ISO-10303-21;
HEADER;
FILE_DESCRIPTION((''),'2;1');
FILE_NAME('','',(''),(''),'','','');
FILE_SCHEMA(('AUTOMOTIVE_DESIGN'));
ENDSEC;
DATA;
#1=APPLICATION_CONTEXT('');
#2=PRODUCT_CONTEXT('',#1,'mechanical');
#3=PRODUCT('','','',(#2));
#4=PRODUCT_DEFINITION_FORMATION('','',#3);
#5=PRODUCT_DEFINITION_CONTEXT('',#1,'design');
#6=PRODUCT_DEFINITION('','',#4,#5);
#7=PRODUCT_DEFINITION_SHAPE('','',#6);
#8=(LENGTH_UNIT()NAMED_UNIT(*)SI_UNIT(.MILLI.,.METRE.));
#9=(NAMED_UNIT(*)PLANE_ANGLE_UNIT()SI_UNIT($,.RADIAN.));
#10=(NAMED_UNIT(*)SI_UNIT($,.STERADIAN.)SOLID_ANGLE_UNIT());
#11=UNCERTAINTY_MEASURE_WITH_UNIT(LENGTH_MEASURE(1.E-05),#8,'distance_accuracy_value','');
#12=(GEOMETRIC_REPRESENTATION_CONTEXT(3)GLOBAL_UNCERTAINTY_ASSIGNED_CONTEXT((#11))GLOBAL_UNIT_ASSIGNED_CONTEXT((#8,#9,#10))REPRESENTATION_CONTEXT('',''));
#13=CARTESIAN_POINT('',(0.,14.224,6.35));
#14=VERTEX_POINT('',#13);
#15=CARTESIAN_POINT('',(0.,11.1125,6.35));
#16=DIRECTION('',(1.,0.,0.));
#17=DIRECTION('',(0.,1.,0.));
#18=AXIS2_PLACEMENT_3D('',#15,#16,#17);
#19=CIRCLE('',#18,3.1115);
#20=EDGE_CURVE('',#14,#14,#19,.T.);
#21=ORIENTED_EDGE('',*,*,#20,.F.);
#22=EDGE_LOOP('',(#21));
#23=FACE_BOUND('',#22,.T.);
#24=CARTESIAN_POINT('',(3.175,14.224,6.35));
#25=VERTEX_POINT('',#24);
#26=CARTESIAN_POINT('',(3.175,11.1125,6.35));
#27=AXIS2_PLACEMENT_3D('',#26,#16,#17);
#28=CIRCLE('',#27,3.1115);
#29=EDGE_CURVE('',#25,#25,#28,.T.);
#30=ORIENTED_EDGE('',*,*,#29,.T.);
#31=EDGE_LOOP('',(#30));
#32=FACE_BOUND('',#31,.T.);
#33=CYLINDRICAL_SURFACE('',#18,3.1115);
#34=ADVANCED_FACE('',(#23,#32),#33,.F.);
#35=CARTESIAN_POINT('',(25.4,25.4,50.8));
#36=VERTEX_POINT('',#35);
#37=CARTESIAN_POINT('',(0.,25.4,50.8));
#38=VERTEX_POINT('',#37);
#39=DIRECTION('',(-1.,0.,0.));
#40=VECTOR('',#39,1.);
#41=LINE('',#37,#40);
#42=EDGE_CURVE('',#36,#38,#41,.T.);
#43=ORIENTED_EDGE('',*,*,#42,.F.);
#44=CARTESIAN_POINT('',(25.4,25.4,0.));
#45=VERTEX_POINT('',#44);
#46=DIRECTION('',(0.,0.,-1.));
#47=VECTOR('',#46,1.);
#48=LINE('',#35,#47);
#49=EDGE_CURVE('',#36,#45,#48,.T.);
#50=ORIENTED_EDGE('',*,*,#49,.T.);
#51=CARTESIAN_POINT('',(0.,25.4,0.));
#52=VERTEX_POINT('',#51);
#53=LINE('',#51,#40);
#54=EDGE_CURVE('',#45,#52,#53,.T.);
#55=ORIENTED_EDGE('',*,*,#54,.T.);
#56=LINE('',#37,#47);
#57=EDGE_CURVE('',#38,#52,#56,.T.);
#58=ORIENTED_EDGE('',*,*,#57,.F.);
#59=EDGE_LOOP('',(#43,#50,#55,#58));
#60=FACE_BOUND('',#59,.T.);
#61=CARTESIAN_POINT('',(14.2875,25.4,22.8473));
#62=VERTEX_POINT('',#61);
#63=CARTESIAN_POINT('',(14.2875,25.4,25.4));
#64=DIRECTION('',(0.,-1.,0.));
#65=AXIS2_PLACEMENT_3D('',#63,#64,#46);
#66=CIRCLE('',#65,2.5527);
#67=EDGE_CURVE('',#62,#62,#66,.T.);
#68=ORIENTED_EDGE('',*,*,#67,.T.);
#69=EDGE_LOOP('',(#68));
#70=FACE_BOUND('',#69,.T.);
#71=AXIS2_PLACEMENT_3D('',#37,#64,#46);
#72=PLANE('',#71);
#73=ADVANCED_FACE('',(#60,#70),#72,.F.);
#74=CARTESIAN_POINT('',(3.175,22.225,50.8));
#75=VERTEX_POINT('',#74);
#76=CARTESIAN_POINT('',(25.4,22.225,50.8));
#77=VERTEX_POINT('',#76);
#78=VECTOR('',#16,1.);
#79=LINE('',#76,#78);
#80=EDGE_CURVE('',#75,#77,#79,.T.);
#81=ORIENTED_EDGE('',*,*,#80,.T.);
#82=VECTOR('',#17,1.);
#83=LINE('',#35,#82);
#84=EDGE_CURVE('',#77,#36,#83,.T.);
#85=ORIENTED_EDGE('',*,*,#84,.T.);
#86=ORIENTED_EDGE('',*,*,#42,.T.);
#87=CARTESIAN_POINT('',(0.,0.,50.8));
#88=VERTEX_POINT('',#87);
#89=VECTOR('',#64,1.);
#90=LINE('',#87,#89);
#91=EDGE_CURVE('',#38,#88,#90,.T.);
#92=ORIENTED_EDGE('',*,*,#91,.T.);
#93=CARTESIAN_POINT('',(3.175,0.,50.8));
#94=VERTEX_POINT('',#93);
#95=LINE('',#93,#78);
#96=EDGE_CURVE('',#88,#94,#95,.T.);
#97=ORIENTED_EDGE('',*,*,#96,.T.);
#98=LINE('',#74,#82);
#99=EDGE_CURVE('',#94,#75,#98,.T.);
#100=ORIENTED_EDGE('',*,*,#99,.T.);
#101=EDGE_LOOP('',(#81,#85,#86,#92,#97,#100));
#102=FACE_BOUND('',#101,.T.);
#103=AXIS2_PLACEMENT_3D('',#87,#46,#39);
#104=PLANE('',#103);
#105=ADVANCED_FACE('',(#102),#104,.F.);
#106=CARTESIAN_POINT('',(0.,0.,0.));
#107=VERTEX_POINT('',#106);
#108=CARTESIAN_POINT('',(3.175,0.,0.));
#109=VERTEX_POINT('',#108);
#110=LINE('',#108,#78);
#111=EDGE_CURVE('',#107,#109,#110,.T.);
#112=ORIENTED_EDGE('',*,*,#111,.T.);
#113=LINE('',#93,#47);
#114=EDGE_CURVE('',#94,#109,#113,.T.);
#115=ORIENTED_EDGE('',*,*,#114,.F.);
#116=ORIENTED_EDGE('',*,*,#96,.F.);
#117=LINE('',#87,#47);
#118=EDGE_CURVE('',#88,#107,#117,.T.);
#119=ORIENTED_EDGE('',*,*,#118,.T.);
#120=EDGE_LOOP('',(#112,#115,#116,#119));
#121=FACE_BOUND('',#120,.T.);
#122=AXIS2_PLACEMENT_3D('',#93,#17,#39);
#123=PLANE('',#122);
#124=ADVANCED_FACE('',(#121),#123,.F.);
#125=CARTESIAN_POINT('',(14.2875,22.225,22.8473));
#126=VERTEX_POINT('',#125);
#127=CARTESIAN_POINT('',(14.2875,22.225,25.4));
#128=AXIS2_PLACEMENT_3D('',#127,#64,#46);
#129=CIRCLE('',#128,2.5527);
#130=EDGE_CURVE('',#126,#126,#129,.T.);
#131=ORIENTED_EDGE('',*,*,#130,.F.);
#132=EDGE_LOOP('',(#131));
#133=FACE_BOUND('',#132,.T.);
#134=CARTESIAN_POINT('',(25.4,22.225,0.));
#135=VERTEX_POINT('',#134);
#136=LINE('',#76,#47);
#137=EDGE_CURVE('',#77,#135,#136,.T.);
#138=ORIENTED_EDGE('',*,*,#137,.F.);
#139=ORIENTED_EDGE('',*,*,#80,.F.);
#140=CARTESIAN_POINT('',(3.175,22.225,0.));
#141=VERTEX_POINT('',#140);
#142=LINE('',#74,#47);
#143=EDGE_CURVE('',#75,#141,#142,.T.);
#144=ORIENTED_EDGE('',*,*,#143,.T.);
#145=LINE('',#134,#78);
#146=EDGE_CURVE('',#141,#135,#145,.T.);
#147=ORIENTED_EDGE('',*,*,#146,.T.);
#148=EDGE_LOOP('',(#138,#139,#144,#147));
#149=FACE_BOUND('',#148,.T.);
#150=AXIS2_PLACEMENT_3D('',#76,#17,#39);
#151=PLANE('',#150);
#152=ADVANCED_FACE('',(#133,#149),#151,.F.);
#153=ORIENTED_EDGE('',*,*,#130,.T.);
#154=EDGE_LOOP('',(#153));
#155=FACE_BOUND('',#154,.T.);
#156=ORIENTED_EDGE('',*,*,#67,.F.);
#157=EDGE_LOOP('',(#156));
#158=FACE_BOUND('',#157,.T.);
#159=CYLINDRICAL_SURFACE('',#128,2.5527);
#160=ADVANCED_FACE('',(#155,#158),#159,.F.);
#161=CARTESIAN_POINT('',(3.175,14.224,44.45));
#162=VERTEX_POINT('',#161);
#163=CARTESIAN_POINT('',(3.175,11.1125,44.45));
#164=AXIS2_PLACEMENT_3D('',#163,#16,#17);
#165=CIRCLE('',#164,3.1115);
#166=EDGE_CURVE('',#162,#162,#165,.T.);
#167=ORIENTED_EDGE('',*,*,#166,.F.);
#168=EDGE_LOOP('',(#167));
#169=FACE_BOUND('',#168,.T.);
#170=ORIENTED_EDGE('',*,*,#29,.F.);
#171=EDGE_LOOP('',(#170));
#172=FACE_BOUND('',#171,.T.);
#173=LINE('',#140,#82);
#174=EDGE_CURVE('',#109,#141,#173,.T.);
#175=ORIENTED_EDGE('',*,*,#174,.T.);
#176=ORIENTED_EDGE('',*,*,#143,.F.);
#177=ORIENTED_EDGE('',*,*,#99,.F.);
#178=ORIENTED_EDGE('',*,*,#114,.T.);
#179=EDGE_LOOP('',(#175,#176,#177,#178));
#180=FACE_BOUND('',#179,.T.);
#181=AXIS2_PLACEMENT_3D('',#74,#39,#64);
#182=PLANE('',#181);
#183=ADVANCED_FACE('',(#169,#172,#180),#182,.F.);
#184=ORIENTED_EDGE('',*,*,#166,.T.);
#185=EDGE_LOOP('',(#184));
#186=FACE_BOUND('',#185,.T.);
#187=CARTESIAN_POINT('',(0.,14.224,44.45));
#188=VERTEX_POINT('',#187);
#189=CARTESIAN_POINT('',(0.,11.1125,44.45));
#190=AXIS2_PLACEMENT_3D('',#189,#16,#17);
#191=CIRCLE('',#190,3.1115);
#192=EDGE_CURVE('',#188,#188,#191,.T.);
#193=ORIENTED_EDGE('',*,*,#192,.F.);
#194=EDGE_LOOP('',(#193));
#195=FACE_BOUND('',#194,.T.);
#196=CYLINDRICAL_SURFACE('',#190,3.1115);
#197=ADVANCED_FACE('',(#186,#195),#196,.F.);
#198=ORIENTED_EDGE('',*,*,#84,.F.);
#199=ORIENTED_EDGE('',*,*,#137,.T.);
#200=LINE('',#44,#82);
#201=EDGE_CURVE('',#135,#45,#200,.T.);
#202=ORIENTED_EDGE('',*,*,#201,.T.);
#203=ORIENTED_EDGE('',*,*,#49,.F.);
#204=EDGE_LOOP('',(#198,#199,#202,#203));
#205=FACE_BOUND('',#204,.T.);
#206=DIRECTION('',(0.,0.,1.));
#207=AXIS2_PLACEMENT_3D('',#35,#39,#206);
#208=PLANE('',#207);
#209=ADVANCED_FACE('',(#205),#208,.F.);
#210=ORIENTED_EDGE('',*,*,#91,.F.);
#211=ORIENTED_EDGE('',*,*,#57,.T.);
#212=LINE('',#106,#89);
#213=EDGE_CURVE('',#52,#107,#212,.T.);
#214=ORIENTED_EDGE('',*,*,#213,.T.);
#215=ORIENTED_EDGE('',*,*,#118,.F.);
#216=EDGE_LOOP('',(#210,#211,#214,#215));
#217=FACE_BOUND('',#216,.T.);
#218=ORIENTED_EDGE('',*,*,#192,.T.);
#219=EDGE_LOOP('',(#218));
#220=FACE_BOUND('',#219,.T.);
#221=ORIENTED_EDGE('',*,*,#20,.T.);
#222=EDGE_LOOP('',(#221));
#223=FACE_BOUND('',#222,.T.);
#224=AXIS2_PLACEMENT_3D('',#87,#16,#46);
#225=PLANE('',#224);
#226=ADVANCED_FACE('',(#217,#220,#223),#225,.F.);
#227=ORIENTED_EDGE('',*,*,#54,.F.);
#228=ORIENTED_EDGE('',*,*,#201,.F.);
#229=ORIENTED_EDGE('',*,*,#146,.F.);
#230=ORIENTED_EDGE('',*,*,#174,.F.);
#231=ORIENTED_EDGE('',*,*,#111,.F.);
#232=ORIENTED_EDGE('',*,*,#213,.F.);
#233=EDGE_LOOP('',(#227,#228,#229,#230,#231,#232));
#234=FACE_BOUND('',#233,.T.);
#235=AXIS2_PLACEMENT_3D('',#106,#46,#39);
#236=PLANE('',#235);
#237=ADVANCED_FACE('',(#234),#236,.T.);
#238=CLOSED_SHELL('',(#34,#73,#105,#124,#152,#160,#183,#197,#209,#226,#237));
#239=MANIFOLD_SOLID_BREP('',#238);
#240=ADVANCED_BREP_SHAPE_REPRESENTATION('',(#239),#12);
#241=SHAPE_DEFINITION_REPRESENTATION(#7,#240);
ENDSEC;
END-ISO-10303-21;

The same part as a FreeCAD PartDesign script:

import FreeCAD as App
import Part
import Sketcher
from FreeCAD import Vector
Q = App.Units.Quantity


def add_polygon(sketch, points):
    """Adds a closed chain of lines whose ends are joined by coincident constraints."""
    first, n = sketch.GeometryCount, len(points)
    for a, b in zip(points, points[1:] + points[:1]):
        sketch.addGeometry(Part.LineSegment(App.Vector(*a, 0), App.Vector(*b, 0)), False)
    for i in range(n):
        sketch.addConstraint(Sketcher.Constraint("Coincident", first + i, 2, first + (i + 1) % n, 1))

doc = App.newDocument("Part")
params = doc.addObject("Spreadsheet::Sheet", "Params")
for row, (alias, value) in enumerate([
    ("sketch1_width", "1 in"),
    ("sketch1_width2", "0.125 in"),
    ("pad1_length", "2 in"),
    ("sketch2_diameter", "0.245 in"),
    ("sketch3_diameter", "0.201 in"),
    ("hole_diameter", "0.201 in"),
], start=1):
    params.set(f"A{row}", alias)
    params.set(f"B{row}", "=" + value)
    params.setAlias(f"B{row}", alias)

body = doc.addObject("PartDesign::Body", "Body")

sketch1 = body.newObject("Sketcher::SketchObject", "Sketch")
sketch1.AttachmentSupport = (doc.getObject("XY_Plane"), [""])
sketch1.MapMode = "FlatFace"
add_polygon(sketch1, [(0, 25.4), (0, 0), (3.2, 0), (3.2, 22.2), (25.4, 22.2), (25.4, 25.4)])
sketch1.addConstraint([
    Sketcher.Constraint("Vertical", 0),
    Sketcher.Constraint("Horizontal", 1),
    Sketcher.Constraint("Vertical", 2),
    Sketcher.Constraint("Horizontal", 3),
    Sketcher.Constraint("Vertical", 4),
    Sketcher.Constraint("Horizontal", 5),
    Sketcher.Constraint("Coincident", 0, 2, -1, 1),
    Sketcher.Constraint("Equal", 5, 0),
    Sketcher.Constraint("Equal", 3, 2),
    Sketcher.Constraint("DistanceX", 5, 2, 5, 1, Q("1 in")),
    Sketcher.Constraint("DistanceX", 1, 1, 1, 2, Q("0.125 in")),
])
sketch1.setExpression("Constraints[15]", "Params.sketch1_width")
sketch1.setExpression("Constraints[16]", "Params.sketch1_width2")
pad1 = body.newObject("PartDesign::Pad", "Pad")
pad1.Profile = sketch1
pad1.setExpression("Length", "Params.pad1_length")

sketch2 = body.newObject("Sketcher::SketchObject", "Sketch001")
sketch2.AttachmentSupport = (doc.getObject("YZ_Plane"), [""])
sketch2.MapMode = "FlatFace"
sketch2.AttachmentOffset = App.Placement(Vector(0, 0, 0.125 * 25.4), App.Rotation())
sketch2.addGeometry([
    Part.Circle(Vector(11.1, 44.5, 0), Vector(0, 0, 1), 3.1),
    Part.Circle(Vector(11.1, 6.3, 0), Vector(0, 0, 1), 3.1),
], False)
sketch2.addConstraint([
    Sketcher.Constraint("Equal", 0, 1),
    Sketcher.Constraint("Vertical", 0, 3, 1, 3),
    Sketcher.Constraint("Diameter", 0, Q("0.245 in")),
    Sketcher.Constraint("DistanceY", 1, 3, 0, 3, Q("1.5 in")),
    Sketcher.Constraint("DistanceY", -1, 1, 0, 3, Q("1.75 in")),
    Sketcher.Constraint("DistanceX", -1, 1, 0, 3, Q("0.4375 in")),
])
sketch2.setExpression("Constraints[2]", "Params.sketch2_diameter")
pocket1 = body.newObject("PartDesign::Pocket", "Pocket")
pocket1.Profile = sketch2
pocket1.Type = "ThroughAll"

sketch3 = body.newObject("Sketcher::SketchObject", "Sketch002")
sketch3.AttachmentSupport = (doc.getObject("XZ_Plane"), [""])
sketch3.MapMode = "FlatFace"
sketch3.AttachmentOffset = App.Placement(Vector(0, 0, -0.875 * 25.4), App.Rotation())
sketch3.addGeometry(Part.Circle(Vector(14.3, 25.4, 0), Vector(0, 0, 1), 2.6), False)
sketch3.addConstraint([
    Sketcher.Constraint("Diameter", 0, Q("0.201 in")),
    Sketcher.Constraint("DistanceY", -1, 1, 0, 3, Q("1 in")),
    Sketcher.Constraint("DistanceX", -1, 1, 0, 3, Q("0.5625 in")),
])
sketch3.setExpression("Constraints[0]", "Params.sketch3_diameter")
doc.recompute()
hole = body.newObject("PartDesign::Hole", "Hole")
hole.Profile = sketch3
hole.ThreadType = "None"
hole.setExpression("Diameter", "Params.hole_diameter")
hole.DepthType = "ThroughAll"

doc.recompute()
